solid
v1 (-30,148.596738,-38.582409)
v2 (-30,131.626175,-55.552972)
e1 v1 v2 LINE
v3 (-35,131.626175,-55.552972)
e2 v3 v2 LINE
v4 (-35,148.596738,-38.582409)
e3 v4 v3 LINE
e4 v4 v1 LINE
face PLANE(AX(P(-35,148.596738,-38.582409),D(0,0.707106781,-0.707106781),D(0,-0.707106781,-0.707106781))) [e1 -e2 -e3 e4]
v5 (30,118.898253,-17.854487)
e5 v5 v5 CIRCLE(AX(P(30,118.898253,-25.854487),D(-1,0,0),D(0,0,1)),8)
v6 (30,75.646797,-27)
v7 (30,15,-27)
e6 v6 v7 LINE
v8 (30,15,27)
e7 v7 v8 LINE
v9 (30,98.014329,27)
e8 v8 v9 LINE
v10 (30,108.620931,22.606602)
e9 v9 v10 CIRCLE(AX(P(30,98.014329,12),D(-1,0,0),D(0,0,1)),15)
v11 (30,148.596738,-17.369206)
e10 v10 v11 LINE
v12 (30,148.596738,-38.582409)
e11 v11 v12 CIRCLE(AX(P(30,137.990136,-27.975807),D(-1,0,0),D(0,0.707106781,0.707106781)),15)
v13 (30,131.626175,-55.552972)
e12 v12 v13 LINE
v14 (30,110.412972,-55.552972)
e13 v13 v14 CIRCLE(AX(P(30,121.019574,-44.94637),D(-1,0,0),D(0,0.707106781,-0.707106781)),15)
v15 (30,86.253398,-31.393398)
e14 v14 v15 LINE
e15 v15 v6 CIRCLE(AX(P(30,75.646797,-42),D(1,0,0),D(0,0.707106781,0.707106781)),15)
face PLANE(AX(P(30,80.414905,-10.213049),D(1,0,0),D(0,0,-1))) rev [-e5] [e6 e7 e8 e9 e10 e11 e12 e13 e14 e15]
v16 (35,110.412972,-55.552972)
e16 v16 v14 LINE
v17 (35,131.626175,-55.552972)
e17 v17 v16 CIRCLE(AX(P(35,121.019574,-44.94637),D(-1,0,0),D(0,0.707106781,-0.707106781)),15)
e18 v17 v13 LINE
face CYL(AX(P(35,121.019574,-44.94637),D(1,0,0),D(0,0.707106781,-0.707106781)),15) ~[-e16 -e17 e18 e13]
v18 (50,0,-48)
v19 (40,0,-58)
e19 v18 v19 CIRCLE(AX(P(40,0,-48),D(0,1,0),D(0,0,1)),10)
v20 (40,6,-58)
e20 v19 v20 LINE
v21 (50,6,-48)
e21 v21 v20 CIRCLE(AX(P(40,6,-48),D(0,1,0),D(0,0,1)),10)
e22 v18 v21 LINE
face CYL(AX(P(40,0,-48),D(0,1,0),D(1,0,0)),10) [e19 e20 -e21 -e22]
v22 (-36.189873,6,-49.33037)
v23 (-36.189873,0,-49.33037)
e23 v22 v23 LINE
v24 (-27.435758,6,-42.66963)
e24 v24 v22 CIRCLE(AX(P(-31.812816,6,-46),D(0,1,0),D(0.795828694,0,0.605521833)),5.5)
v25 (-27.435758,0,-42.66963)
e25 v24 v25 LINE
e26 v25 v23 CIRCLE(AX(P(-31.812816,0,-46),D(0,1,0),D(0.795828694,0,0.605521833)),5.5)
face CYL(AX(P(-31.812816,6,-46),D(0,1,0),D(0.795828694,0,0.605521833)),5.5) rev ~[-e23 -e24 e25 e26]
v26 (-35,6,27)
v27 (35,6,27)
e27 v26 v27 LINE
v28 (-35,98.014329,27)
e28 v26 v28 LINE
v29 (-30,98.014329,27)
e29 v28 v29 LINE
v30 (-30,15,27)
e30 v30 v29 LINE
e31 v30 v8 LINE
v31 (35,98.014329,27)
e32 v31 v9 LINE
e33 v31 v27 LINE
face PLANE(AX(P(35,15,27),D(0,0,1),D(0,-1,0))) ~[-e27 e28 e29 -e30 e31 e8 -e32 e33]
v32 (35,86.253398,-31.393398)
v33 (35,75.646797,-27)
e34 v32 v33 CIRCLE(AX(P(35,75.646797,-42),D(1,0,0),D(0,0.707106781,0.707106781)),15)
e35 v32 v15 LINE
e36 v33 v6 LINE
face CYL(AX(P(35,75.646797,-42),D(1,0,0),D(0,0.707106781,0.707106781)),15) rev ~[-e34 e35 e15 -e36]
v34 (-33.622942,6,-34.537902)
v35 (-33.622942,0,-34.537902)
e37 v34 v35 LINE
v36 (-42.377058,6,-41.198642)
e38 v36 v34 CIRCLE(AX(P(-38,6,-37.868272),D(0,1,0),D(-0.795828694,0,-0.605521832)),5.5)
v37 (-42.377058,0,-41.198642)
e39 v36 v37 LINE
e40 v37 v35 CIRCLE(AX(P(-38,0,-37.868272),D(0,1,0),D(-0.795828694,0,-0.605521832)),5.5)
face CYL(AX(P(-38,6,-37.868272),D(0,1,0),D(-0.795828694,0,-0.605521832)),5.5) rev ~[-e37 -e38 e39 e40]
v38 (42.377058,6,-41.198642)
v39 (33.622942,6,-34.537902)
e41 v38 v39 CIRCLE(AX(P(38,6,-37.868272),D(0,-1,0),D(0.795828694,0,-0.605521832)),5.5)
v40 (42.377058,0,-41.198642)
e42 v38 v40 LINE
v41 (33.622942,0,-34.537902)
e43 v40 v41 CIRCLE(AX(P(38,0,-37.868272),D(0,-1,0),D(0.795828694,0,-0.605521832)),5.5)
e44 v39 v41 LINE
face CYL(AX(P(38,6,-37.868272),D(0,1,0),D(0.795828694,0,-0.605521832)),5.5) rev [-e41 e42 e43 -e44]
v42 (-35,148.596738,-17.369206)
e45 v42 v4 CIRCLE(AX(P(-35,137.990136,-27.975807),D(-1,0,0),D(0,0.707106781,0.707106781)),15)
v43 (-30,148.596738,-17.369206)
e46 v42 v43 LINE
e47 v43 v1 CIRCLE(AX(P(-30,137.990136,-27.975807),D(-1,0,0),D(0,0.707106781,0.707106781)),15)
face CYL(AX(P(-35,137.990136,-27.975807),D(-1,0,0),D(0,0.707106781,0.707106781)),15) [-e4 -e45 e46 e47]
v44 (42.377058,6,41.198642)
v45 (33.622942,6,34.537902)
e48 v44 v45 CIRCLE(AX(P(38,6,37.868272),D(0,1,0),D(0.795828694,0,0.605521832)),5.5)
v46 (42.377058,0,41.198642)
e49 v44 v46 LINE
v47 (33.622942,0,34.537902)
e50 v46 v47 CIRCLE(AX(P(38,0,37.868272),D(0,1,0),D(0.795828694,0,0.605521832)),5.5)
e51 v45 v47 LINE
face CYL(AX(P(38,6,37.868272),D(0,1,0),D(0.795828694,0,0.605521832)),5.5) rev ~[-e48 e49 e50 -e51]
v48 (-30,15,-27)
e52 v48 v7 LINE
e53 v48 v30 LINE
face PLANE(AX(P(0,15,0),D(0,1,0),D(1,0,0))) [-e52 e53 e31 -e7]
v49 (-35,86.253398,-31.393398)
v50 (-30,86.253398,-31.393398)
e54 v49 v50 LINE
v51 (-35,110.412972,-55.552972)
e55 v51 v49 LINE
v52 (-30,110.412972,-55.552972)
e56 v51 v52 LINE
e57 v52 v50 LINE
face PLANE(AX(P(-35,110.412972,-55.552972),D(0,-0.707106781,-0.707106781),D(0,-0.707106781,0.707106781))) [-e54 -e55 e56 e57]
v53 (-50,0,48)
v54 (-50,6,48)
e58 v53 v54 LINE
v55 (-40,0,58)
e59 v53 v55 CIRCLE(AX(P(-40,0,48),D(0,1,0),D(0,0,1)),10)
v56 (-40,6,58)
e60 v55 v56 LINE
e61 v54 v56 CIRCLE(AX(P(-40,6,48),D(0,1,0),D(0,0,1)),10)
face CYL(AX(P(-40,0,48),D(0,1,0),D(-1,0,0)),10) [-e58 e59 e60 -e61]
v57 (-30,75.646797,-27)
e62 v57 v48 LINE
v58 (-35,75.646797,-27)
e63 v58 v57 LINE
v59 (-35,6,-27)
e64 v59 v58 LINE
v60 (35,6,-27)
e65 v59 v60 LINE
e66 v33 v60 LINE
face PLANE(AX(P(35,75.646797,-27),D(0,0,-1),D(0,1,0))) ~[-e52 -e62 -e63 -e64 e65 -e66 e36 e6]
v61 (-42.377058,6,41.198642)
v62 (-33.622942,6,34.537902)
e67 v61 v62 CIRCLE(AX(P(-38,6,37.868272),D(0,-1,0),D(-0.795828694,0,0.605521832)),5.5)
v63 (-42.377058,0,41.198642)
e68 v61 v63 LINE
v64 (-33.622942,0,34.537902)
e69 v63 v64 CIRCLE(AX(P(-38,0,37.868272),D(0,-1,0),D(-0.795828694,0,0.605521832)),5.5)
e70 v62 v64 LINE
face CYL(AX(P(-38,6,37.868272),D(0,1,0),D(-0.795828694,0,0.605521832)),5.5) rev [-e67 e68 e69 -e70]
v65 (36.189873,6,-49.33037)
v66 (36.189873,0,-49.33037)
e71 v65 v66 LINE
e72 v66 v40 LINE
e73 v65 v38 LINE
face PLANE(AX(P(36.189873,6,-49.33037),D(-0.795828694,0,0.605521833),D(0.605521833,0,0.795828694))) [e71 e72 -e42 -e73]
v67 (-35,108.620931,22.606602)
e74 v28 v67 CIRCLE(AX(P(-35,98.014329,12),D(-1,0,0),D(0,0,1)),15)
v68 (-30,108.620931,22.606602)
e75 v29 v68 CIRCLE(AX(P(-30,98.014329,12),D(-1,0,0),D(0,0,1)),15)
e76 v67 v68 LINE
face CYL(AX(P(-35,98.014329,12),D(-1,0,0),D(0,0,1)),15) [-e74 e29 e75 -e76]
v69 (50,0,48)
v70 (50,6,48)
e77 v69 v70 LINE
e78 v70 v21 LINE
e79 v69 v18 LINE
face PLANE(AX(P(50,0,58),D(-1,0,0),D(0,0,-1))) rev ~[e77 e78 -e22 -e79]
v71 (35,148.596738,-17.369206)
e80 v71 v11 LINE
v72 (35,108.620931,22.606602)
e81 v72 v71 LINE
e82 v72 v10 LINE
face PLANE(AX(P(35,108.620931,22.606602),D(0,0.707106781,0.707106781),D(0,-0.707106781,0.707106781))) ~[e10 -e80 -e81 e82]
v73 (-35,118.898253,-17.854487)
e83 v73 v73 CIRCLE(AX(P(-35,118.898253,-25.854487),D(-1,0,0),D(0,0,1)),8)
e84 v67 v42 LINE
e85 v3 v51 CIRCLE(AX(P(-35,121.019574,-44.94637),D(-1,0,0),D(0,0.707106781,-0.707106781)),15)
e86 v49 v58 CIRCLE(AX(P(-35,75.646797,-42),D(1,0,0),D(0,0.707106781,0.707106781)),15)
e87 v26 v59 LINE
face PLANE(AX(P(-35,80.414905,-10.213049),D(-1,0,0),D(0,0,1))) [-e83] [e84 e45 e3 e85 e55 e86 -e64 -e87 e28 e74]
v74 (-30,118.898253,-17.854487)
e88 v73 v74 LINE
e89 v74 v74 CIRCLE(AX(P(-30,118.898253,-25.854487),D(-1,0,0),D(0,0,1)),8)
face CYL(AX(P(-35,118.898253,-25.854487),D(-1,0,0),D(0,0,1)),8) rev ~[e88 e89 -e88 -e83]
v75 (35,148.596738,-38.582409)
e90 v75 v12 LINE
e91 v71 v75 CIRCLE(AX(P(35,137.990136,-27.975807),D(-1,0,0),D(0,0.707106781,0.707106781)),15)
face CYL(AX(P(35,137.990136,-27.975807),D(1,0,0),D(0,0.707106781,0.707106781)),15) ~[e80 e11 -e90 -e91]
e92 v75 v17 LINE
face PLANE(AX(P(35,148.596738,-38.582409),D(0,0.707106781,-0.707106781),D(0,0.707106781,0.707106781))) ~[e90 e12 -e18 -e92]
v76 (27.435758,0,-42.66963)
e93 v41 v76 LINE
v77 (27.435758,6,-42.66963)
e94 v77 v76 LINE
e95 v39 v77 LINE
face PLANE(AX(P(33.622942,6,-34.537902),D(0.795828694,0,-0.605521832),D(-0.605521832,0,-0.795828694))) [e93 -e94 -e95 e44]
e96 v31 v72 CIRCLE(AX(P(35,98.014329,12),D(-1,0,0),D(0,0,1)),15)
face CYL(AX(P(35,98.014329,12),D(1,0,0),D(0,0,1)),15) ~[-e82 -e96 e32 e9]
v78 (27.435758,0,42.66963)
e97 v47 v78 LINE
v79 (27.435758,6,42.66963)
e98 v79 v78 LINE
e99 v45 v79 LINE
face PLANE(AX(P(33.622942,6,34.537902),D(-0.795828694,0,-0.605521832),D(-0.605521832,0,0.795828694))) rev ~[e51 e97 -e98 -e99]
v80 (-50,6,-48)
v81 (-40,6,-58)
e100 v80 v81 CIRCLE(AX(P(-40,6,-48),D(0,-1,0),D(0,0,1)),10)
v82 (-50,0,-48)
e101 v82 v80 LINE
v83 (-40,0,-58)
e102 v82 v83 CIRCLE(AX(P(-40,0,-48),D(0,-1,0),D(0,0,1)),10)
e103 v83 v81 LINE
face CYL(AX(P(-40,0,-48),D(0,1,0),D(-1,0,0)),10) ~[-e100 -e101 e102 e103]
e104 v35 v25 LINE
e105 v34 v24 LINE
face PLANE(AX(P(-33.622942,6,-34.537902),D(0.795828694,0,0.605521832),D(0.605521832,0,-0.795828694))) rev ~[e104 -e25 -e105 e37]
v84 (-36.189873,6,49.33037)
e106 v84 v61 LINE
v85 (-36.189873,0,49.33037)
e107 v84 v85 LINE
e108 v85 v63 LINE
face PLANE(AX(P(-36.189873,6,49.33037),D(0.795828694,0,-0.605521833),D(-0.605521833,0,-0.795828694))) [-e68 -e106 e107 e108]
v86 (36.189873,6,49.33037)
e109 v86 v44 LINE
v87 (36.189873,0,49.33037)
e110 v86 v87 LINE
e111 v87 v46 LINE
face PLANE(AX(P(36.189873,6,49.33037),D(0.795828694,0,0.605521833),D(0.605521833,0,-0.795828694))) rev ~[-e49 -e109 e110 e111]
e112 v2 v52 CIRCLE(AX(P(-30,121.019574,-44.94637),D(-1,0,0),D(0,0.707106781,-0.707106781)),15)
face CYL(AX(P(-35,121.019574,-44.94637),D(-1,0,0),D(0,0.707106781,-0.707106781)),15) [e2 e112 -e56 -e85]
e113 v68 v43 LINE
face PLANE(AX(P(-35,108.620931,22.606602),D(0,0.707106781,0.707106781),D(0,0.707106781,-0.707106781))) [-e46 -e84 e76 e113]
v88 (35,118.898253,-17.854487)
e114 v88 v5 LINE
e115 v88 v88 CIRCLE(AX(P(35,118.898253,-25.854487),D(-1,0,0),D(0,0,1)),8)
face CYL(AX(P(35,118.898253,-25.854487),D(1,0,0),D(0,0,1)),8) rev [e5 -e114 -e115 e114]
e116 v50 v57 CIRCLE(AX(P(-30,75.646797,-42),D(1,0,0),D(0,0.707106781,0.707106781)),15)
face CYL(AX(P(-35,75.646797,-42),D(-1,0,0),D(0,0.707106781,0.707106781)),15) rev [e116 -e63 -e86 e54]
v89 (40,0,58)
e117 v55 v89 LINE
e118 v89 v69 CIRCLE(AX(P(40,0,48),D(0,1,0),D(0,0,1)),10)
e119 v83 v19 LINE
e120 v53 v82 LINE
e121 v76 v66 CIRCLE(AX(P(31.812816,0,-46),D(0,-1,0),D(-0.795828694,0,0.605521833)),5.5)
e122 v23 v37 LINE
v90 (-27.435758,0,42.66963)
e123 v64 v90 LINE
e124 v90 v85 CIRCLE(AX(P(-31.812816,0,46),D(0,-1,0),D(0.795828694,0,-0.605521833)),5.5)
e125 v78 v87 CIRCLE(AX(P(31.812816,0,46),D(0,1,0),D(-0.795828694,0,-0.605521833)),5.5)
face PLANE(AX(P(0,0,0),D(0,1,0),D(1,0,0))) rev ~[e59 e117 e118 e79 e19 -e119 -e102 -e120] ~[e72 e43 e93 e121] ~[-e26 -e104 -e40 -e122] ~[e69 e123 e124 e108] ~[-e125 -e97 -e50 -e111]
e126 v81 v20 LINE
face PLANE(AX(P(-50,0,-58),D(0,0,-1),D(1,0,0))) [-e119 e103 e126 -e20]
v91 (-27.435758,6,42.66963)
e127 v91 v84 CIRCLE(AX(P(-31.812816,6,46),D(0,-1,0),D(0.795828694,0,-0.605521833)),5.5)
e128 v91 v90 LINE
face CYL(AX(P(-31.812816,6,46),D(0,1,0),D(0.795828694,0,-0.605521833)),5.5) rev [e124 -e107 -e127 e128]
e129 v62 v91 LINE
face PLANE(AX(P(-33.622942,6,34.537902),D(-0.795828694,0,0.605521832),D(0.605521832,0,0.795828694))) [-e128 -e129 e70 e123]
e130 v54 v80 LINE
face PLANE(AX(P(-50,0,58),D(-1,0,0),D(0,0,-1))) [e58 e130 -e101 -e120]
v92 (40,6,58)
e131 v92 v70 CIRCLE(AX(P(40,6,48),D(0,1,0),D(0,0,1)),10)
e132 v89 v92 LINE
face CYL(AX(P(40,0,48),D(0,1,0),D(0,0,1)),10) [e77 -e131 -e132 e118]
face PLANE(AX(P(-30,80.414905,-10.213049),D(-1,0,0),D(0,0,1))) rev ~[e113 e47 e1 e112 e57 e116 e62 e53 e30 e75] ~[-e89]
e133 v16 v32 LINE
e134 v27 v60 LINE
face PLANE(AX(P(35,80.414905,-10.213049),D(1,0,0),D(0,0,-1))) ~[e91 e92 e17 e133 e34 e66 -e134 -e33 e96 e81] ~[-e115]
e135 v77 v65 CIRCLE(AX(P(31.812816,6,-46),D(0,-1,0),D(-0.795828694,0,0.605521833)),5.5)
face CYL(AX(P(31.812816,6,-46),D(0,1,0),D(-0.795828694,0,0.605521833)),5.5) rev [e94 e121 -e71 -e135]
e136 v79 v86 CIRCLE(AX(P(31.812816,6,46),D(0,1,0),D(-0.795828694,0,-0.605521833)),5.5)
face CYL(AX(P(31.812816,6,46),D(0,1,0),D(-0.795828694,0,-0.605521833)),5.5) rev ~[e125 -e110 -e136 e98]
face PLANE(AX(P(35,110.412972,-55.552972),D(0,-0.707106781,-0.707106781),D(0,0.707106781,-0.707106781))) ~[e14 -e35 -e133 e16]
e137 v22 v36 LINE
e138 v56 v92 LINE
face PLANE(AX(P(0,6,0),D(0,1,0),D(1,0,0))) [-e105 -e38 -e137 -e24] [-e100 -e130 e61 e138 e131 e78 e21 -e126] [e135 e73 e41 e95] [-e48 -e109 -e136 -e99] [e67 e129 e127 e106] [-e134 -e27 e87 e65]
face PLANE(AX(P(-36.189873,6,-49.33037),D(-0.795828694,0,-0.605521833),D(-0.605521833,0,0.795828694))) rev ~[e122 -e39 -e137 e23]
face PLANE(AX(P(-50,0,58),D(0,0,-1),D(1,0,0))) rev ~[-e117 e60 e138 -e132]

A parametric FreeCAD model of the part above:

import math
import FreeCAD as App
import Part
import Sketcher
from FreeCAD import Vector


def edges_at(feature, points):
    """Names of the edges that pass closest to the given points."""
    edges = feature.Shape.Edges
    near = lambda p: min(range(len(edges)), key=lambda i: edges[i].distToShape(Part.Vertex(*p))[0])
    return sorted({f"Edge{near(p) + 1}" for p in points})


def add_polygon(sketch, points):
    """Adds a closed chain of lines whose ends are joined by coincident constraints."""
    first, n = sketch.GeometryCount, len(points)
    for a, b in zip(points, points[1:] + points[:1]):
        sketch.addGeometry(Part.LineSegment(App.Vector(*a, 0), App.Vector(*b, 0)), False)
    for i in range(n):
        sketch.addConstraint(Sketcher.Constraint("Coincident", first + i, 2, first + (i + 1) % n, 1))

doc = App.newDocument("Part")
body = doc.addObject("PartDesign::Body", "Body")

sketch1 = body.newObject("Sketcher::SketchObject", "Sketch")
sketch1.AttachmentSupport = (doc.getObject("XZ_Plane"), [""])
sketch1.MapMode = "FlatFace"
add_polygon(sketch1, [(-50, -58), (-50, 58), (50, 58), (50, -58)])
sketch1.addConstraint([
    Sketcher.Constraint("Vertical", 0),
    Sketcher.Constraint("Horizontal", 1),
    Sketcher.Constraint("Vertical", 2),
    Sketcher.Constraint("Horizontal", 3),
    Sketcher.Constraint("Symmetric", 0, 2, 2, 2, -1, 1),
    Sketcher.Constraint("DistanceX", 1, 1, 1, 2, 100.0),
    Sketcher.Constraint("DistanceY", 0, 1, 0, 2, 116.0),
])
pad1 = body.newObject("PartDesign::Pad", "Pad")
pad1.Profile = sketch1
pad1.Length = 6
pad1.Reversed = True
doc.recompute()

fillet = body.newObject("PartDesign::Fillet", "Fillet")
fillet.Base = (pad1, edges_at(pad1, [
    (-50, 3, -58),
    (50, 3, -58),
    (50, 3, 58),
    (-50, 3, 58),
]))
fillet.Radius = 10

sketch2 = body.newObject("Sketcher::SketchObject", "Sketch001")
sketch2.AttachmentSupport = (doc.getObject("XZ_Plane"), [""])
sketch2.MapMode = "FlatFace"
sketch2.AttachmentOffset = App.Placement(Vector(0, 0, -6), App.Rotation())
sketch2.addGeometry([
    Part.LineSegment(Vector(-36, -49, 0), Vector(-42, -41, 0)),
    Part.ArcOfCircle(Part.Circle(Vector(-38, -38, 0), Vector(0, 0, 1), 6), math.radians(37), math.radians(217)),
    Part.LineSegment(Vector(-34, -35, 0), Vector(-27, -43, 0)),
    Part.ArcOfCircle(Part.Circle(Vector(-32, -46, 0), Vector(0, 0, 1), 6), math.radians(-143), math.radians(37)),
    Part.LineSegment(Vector(42, -41, 0), Vector(36, -49, 0)),
    Part.ArcOfCircle(Part.Circle(Vector(32, -46, 0), Vector(0, 0, 1), 6), math.radians(143), math.radians(323)),
    Part.LineSegment(Vector(27, -43, 0), Vector(34, -35, 0)),
    Part.ArcOfCircle(Part.Circle(Vector(38, -38, 0), Vector(0, 0, 1), 6), math.radians(-37), math.radians(143)),
    Part.LineSegment(Vector(-42, 41, 0), Vector(-36, 49, 0)),
    Part.ArcOfCircle(Part.Circle(Vector(-32, 46, 0), Vector(0, 0, 1), 6), math.radians(-37), math.radians(143)),
    Part.LineSegment(Vector(-27, 43, 0), Vector(-34, 35, 0)),
    Part.ArcOfCircle(Part.Circle(Vector(-38, 38, 0), Vector(0, 0, 1), 6), math.radians(143), math.radians(323)),
    Part.LineSegment(Vector(36, 49, 0), Vector(42, 41, 0)),
    Part.ArcOfCircle(Part.Circle(Vector(38, 38, 0), Vector(0, 0, 1), 6), math.radians(-143), math.radians(37)),
    Part.LineSegment(Vector(34, 35, 0), Vector(27, 43, 0)),
    Part.ArcOfCircle(Part.Circle(Vector(32, 46, 0), Vector(0, 0, 1), 6), math.radians(37), math.radians(217)),
], False)
sketch2.addConstraint([
    Sketcher.Constraint("Tangent", 0, 2, 1, 2),
    Sketcher.Constraint("Tangent", 1, 1, 2, 1),
    Sketcher.Constraint("Tangent", 2, 2, 3, 2),
    Sketcher.Constraint("Tangent", 3, 1, 0, 1),
    Sketcher.Constraint("Tangent", 4, 2, 5, 2),
    Sketcher.Constraint("Tangent", 5, 1, 6, 1),
    Sketcher.Constraint("Tangent", 6, 2, 7, 2),
    Sketcher.Constraint("Tangent", 7, 1, 4, 1),
    Sketcher.Constraint("Tangent", 8, 2, 9, 2),
    Sketcher.Constraint("Tangent", 9, 1, 10, 1),
    Sketcher.Constraint("Tangent", 10, 2, 11, 2),
    Sketcher.Constraint("Tangent", 11, 1, 8, 1),
    Sketcher.Constraint("Tangent", 12, 2, 13, 2),
    Sketcher.Constraint("Tangent", 13, 1, 14, 1),
    Sketcher.Constraint("Tangent", 14, 2, 15, 2),
    Sketcher.Constraint("Tangent", 15, 1, 12, 1),
    Sketcher.Constraint("Equal", 1, 3),
    Sketcher.Constraint("Equal", 3, 5),
    Sketcher.Constraint("Equal", 5, 7),
    Sketcher.Constraint("Equal", 7, 9),
    Sketcher.Constraint("Equal", 9, 11),
    Sketcher.Constraint("Equal", 11, 13),
    Sketcher.Constraint("Equal", 13, 15),
    Sketcher.Constraint("Symmetric", 5, 3, 9, 3, -1, 1),
    Sketcher.Constraint("Symmetric", 7, 3, 11, 3, -1, 1),
    Sketcher.Constraint("Symmetric", 1, 3, 13, 3, -1, 1),
    Sketcher.Constraint("Symmetric", 3, 3, 15, 3, -1, 1),
    Sketcher.Constraint("Symmetric", 3, 3, 5, 3, -2),
    Sketcher.Constraint("Symmetric", 1, 3, 7, 3, -2),
    Sketcher.Constraint("Radius", 1, 5.5),
    Sketcher.Constraint("DistanceX", 1, 3, -1, 1, 38.0),
    Sketcher.Constraint("DistanceY", 3, 3, -1, 1, 46.0),
    Sketcher.Constraint("DistanceY", 1, 1, -1, 1, 34.537902),
    Sketcher.Constraint("DistanceX", 0, 2, 2, 2, 14.9413),
])
pocket1 = body.newObject("PartDesign::Pocket", "Pocket")
pocket1.Profile = sketch2
pocket1.Length = 6
pocket1.Reversed = True

sketch3 = body.newObject("Sketcher::SketchObject", "Sketch002")
sketch3.AttachmentSupport = (doc.getObject("XZ_Plane"), [""])
sketch3.MapMode = "FlatFace"
sketch3.AttachmentOffset = App.Placement(Vector(0, 0, -6), App.Rotation())
add_polygon(sketch3, [(-35, -27), (-35, 27), (35, 27), (35, -27)])
sketch3.addConstraint([
    Sketcher.Constraint("Vertical", 0),
    Sketcher.Constraint("Horizontal", 1),
    Sketcher.Constraint("Vertical", 2),
    Sketcher.Constraint("Horizontal", 3),
    Sketcher.Constraint("Symmetric", 0, 2, 2, 2, -1, 1),
    Sketcher.Constraint("DistanceX", 1, 1, 1, 2, 70.0),
    Sketcher.Constraint("DistanceY", 0, 1, 0, 2, 54.0),
])
pad2 = body.newObject("PartDesign::Pad", "Pad001")
pad2.Profile = sketch3
pad2.Length = 9
pad2.Reversed = True

sketch4 = body.newObject("Sketcher::SketchObject", "Sketch003")
sketch4.AttachmentSupport = (doc.getObject("YZ_Plane"), [""])
sketch4.MapMode = "FlatFace"
sketch4.AttachmentOffset = App.Placement(Vector(0, 0, -35), App.Rotation())
sketch4.addGeometry([
    Part.LineSegment(Vector(15, -27, 0), Vector(15, 27, 0)),
    Part.LineSegment(Vector(15, 27, 0), Vector(98, 27, 0)),
    Part.ArcOfCircle(Part.Circle(Vector(98, 12, 0), Vector(0, 0, 1), 15), math.radians(45), math.radians(90)),
    Part.LineSegment(Vector(109, 23, 0), Vector(149, -17, 0)),
    Part.ArcOfCircle(Part.Circle(Vector(138, -28, 0), Vector(0, 0, 1), 15), math.radians(-45), math.radians(45)),
    Part.LineSegment(Vector(149, -39, 0), Vector(132, -56, 0)),
    Part.ArcOfCircle(Part.Circle(Vector(121, -45, 0), Vector(0, 0, 1), 15), math.radians(-135), math.radians(-45)),
    Part.LineSegment(Vector(110, -56, 0), Vector(86, -31, 0)),
    Part.ArcOfCircle(Part.Circle(Vector(76, -42, 0), Vector(0, 0, 1), 15), math.radians(45), math.radians(90)),
    Part.LineSegment(Vector(76, -27, 0), Vector(15, -27, 0)),
    Part.Circle(Vector(119, -26, 0), Vector(0, 0, 1), 8),
], False)
sketch4.addConstraint([
    Sketcher.Constraint("Coincident", 0, 2, 1, 1),
    Sketcher.Constraint("Tangent", 1, 2, 2, 2),
    Sketcher.Constraint("Tangent", 2, 1, 3, 1),
    Sketcher.Constraint("Tangent", 3, 2, 4, 2),
    Sketcher.Constraint("Tangent", 4, 1, 5, 1),
    Sketcher.Constraint("Tangent", 5, 2, 6, 2),
    Sketcher.Constraint("Tangent", 6, 1, 7, 1),
    Sketcher.Constraint("Tangent", 7, 2, 8, 1),
    Sketcher.Constraint("Tangent", 8, 2, 9, 1),
    Sketcher.Constraint("Coincident", 9, 2, 0, 1),
    Sketcher.Constraint("Vertical", 0),
    Sketcher.Constraint("Horizontal", 1),
    Sketcher.Constraint("Horizontal", 9),
    Sketcher.Constraint("Equal", 2, 4),
    Sketcher.Constraint("Equal", 4, 6),
    Sketcher.Constraint("Equal", 6, 8),
    Sketcher.Constraint("Perpendicular", 3, 5),
    Sketcher.Constraint("Perpendicular", 5, 7),
    Sketcher.Constraint("Horizontal", 5, 2, 6, 1),
    Sketcher.Constraint("Diameter", 10, 16.0),
    Sketcher.Constraint("Radius", 2, 15.0),
    Sketcher.Constraint("DistanceY", 0, 1, 0, 2, 54.0),
    Sketcher.Constraint("Distance", 5, 24.0),
    Sketcher.Constraint("DistanceY", -1, 1, 2, 3, 12.0),
    Sketcher.Constraint("DistanceX", -1, 1, 0, 2, 15.0),
    Sketcher.Constraint("DistanceX", 1, 1, 1, 2, 83.014329),
    Sketcher.Constraint("Distance", 3, 56.534329),
    Sketcher.Constraint("DistanceY", 4, 3, 10, 3, 2.12132),
    Sketcher.Constraint("DistanceX", 10, 3, 6, 3, 2.12132),
])
pad3 = body.newObject("PartDesign::Pad", "Pad002")
pad3.Profile = sketch4
pad3.Length = 5
doc.recompute()

mirrored = body.newObject("PartDesign::Mirrored", "Mirrored")
mirrored.Originals = [pad3]
mirrored.MirrorPlane = (doc.getObject("YZ_Plane"), [""])
body.Tip = mirrored

doc.recompute()
